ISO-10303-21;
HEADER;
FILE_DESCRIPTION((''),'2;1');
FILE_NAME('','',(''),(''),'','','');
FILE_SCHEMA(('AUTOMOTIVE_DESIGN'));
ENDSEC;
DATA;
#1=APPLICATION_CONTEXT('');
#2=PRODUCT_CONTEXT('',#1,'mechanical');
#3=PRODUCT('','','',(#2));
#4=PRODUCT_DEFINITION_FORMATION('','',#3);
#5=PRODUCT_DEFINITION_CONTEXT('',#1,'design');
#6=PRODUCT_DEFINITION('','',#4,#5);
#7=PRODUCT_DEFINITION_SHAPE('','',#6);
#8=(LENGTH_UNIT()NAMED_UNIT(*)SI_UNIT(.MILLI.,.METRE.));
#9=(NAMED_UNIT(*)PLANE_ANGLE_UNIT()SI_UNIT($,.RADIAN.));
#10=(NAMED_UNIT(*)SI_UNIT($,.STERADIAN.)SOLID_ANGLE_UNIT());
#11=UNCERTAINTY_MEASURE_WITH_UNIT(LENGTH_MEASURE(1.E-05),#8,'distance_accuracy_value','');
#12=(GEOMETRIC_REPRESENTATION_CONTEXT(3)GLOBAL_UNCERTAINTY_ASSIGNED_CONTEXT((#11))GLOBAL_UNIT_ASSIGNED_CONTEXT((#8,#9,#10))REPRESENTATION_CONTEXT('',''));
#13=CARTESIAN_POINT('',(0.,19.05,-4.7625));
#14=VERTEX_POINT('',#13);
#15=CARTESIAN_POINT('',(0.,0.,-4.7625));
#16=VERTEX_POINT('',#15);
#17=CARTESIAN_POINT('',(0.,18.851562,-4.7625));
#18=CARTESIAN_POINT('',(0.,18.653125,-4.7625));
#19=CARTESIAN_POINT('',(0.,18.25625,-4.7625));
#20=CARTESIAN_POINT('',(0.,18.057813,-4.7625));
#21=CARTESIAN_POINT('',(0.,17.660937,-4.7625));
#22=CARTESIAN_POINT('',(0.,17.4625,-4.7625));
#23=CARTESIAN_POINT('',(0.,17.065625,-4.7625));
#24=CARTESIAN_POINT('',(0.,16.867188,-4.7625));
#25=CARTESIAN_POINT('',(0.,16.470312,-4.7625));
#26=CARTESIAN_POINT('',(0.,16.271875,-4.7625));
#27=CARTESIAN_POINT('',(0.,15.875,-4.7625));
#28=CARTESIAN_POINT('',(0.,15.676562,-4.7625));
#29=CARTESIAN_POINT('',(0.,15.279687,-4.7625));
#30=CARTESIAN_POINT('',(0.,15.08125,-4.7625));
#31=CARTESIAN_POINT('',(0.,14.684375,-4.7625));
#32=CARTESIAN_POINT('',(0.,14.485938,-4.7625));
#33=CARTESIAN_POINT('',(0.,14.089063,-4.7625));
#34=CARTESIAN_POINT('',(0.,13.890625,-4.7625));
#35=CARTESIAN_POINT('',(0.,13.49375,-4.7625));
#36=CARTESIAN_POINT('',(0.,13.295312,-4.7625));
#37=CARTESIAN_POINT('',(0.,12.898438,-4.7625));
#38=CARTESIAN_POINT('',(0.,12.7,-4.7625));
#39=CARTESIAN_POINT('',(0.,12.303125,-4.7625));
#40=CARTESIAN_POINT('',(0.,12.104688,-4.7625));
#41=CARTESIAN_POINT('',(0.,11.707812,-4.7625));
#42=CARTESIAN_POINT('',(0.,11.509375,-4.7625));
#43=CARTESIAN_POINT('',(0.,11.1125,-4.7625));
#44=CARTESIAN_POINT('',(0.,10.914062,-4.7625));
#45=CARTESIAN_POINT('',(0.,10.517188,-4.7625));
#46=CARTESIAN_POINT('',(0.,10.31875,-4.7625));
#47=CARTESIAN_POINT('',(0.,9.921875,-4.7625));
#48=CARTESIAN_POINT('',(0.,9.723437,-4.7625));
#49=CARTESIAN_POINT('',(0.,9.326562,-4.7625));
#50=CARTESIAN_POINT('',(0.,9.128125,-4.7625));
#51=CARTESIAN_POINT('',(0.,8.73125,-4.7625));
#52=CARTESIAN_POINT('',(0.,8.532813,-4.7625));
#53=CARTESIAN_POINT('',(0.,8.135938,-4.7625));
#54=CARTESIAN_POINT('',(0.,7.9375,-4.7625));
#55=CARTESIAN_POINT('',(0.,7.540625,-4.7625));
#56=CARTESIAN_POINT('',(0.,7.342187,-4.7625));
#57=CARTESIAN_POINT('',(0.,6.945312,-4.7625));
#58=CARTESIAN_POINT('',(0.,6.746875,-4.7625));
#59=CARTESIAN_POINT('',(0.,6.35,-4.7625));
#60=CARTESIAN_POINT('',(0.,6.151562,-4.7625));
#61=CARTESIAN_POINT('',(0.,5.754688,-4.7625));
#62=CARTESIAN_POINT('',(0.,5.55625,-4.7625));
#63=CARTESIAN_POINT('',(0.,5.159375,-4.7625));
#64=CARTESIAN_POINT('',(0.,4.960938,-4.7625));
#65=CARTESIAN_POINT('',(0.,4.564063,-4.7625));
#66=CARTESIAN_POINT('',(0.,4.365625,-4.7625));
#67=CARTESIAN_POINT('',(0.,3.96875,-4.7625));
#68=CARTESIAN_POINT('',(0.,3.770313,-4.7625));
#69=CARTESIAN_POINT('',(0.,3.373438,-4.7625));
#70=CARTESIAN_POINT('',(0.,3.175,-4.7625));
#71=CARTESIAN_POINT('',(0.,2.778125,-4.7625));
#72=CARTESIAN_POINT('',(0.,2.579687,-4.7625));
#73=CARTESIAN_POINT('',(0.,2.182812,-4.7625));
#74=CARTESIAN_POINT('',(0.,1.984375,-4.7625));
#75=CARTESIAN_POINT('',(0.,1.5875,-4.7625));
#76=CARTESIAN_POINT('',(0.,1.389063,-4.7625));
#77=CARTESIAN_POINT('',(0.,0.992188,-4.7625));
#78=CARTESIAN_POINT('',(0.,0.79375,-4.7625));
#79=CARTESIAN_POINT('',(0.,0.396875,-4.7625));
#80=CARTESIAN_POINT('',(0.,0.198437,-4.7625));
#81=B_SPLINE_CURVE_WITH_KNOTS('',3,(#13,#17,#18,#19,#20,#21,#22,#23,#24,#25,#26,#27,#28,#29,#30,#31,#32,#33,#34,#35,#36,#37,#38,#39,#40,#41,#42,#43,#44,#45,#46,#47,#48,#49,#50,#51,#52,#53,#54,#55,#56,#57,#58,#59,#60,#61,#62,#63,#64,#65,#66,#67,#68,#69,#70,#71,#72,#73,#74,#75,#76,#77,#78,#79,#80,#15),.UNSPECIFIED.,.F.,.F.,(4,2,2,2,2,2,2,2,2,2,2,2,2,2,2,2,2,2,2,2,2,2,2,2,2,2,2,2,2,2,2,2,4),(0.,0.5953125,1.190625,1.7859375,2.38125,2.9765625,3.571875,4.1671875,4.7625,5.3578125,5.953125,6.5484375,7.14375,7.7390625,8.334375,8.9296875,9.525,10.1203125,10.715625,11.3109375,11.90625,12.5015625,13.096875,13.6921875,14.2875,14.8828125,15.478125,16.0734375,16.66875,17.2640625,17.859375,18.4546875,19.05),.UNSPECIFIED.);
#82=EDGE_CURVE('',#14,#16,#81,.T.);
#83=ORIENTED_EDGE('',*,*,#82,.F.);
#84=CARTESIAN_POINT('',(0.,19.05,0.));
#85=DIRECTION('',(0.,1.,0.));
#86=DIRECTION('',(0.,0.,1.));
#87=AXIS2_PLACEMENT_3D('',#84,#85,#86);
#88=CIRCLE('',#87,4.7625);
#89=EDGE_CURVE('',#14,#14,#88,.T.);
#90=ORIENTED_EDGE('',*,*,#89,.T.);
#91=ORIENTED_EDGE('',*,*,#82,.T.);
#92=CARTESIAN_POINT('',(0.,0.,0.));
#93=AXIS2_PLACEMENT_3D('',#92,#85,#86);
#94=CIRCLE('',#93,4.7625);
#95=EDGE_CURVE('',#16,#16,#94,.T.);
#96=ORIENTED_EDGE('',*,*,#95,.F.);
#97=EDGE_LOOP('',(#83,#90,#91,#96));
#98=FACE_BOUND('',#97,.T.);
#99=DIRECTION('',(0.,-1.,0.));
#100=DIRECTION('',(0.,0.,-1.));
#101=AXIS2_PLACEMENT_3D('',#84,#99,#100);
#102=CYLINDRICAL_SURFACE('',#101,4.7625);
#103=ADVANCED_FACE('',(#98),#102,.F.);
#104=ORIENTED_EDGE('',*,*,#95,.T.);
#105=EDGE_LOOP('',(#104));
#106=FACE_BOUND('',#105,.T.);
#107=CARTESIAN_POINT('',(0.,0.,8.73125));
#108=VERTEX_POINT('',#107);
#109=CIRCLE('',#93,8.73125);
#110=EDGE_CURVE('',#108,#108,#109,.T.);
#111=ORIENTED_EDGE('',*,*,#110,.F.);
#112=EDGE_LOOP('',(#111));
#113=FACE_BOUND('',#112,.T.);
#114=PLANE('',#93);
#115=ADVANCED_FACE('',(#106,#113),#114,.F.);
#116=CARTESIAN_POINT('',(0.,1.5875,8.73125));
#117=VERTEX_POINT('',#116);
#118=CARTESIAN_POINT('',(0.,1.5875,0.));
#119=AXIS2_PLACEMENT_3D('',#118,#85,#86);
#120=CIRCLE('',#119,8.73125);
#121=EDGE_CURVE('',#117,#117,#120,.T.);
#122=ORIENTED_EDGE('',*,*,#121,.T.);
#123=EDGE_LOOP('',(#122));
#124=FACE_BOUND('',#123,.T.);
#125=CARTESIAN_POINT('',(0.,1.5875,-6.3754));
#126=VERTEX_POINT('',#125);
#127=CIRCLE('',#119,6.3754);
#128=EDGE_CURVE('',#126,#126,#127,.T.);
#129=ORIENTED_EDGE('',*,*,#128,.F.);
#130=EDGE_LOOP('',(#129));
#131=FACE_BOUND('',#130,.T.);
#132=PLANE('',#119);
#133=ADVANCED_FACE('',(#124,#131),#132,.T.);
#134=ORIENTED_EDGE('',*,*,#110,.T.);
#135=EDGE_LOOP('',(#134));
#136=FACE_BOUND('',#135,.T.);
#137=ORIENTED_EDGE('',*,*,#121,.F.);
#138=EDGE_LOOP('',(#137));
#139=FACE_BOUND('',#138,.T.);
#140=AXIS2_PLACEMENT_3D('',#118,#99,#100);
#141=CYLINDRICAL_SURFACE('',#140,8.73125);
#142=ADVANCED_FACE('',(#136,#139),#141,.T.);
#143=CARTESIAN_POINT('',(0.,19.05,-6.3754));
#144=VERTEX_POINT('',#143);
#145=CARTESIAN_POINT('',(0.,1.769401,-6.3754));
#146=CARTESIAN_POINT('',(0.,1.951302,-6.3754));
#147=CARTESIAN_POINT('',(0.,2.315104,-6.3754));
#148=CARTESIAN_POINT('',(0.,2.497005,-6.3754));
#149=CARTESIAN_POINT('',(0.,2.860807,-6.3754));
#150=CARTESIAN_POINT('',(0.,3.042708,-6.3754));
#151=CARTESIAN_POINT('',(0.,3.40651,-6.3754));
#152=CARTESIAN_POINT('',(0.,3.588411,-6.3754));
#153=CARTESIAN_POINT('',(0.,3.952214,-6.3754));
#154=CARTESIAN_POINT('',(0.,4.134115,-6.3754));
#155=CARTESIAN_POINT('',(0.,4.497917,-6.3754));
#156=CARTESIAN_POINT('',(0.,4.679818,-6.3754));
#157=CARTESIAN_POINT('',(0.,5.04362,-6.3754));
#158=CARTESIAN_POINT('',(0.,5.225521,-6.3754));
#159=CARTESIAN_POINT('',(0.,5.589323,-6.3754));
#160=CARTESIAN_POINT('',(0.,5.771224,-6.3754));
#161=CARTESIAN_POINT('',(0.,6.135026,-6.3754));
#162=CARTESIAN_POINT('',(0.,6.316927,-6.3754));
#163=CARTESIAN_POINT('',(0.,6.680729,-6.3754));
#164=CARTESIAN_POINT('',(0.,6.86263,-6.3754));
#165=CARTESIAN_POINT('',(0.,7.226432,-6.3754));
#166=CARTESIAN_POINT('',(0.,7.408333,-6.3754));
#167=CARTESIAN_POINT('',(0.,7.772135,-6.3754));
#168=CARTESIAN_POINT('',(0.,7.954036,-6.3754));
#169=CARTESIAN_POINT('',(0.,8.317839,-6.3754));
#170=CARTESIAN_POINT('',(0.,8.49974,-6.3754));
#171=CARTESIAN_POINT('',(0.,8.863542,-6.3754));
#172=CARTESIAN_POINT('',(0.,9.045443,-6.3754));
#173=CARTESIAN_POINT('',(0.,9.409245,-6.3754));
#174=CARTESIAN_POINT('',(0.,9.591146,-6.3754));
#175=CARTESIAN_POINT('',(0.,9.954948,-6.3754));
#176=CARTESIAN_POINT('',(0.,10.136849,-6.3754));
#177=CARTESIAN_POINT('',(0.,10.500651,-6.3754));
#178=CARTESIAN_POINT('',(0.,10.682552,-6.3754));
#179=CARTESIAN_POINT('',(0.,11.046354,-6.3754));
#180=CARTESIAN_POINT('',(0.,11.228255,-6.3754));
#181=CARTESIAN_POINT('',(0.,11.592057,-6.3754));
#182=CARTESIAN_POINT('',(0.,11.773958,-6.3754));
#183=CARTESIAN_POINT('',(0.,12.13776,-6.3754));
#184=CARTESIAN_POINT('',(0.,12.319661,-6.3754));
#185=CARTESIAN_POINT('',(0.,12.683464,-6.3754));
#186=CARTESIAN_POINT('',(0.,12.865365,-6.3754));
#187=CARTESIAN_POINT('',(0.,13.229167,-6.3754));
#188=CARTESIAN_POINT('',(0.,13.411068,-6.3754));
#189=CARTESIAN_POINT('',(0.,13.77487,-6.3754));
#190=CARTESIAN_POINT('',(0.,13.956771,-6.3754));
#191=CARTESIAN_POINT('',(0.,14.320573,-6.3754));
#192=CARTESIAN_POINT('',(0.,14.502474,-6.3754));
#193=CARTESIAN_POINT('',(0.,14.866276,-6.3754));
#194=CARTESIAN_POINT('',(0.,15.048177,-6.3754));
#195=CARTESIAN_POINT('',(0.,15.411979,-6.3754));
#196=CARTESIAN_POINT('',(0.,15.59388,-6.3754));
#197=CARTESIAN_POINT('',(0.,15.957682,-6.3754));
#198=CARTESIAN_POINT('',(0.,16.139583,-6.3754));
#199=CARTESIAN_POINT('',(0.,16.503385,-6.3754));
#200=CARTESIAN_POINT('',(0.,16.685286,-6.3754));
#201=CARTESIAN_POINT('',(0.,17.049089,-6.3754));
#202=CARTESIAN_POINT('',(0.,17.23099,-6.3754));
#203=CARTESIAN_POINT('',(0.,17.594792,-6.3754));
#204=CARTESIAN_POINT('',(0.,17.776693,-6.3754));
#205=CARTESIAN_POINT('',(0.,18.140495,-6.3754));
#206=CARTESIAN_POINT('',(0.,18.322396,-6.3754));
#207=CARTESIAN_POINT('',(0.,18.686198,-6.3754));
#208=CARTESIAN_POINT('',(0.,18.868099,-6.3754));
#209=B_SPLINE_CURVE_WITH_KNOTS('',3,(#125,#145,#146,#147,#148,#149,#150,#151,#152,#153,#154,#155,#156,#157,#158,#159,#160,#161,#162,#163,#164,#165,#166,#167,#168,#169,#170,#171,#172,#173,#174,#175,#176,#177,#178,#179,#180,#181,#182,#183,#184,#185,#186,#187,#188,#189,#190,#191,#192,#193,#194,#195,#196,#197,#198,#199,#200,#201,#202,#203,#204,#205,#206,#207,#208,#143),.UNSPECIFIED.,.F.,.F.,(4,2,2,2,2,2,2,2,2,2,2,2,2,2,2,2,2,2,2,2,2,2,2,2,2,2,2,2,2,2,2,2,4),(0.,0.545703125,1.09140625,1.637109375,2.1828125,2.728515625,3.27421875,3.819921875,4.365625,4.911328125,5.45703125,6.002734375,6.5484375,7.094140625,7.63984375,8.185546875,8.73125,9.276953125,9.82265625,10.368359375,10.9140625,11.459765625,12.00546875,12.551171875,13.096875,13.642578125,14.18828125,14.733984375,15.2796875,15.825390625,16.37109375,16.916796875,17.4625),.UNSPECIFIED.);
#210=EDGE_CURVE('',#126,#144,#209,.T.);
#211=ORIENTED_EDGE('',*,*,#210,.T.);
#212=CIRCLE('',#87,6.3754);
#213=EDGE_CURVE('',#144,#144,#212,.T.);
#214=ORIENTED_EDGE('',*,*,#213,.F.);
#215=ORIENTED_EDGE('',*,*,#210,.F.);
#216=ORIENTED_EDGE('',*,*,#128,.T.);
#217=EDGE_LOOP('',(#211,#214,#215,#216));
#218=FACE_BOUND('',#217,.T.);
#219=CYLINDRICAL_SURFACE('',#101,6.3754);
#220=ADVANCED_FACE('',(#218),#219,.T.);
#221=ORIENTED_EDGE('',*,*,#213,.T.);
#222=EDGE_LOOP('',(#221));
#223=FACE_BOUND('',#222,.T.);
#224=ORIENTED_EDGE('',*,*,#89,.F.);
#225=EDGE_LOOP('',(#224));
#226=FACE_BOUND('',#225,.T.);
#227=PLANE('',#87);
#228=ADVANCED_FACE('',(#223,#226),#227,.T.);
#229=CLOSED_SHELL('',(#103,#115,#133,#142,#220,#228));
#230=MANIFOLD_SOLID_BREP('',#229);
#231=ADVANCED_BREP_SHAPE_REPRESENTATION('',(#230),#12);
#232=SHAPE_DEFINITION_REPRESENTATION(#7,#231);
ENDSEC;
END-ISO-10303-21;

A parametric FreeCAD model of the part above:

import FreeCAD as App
import Part
import Sketcher
from FreeCAD import Vector
Q = App.Units.Quantity

doc = App.newDocument("Part")
body = doc.addObject("PartDesign::Body", "Body")

sketch1 = body.newObject("Sketcher::SketchObject", "Sketch")
sketch1.AttachmentSupport = (doc.getObject("XZ_Plane"), [""])
sketch1.MapMode = "FlatFace"
sketch1.addGeometry(Part.Circle(Vector(0, 0, 0), Vector(0, 0, 1), 6.3754), False)
sketch1.addGeometry(Part.Circle(Vector(0, 0, 0), Vector(0, 0, 1), 4.7625), False)
sketch1.addConstraint(Sketcher.Constraint("Coincident", 0, 3, -1, 1))
sketch1.addConstraint(Sketcher.Constraint("Coincident", 1, 3, -1, 1))
sketch1.addConstraint(Sketcher.Constraint("Diameter", 0, Q("0.502 in")))
sketch1.addConstraint(Sketcher.Constraint("Diameter", 1, Q("0.375 in")))
pad1 = body.newObject("PartDesign::Pad", "Pad")
pad1.Profile = sketch1
pad1.Length = Q("0.75 in")
pad1.Reversed = True

sketch2 = body.newObject("Sketcher::SketchObject", "Sketch001")
sketch2.AttachmentSupport = (doc.getObject("XZ_Plane"), [""])
sketch2.MapMode = "FlatFace"
sketch2.addGeometry(Part.Circle(Vector(0, 0, 0), Vector(0, 0, 1), 8.73125), False)
sketch2.addGeometry(Part.Circle(Vector(0, 0, 0), Vector(0, 0, 1), 6.3754), False)
sketch2.addConstraint(Sketcher.Constraint("Coincident", 0, 3, -1, 1))
sketch2.addConstraint(Sketcher.Constraint("Coincident", 1, 3, -1, 1))
sketch2.addConstraint(Sketcher.Constraint("Diameter", 0, Q("0.6875 in")))
sketch2.addConstraint(Sketcher.Constraint("Diameter", 1, Q("0.502 in")))
pad2 = body.newObject("PartDesign::Pad", "Pad001")
pad2.Profile = sketch2
pad2.Length = Q("0.0625 in")
pad2.Reversed = True

doc.recompute()
